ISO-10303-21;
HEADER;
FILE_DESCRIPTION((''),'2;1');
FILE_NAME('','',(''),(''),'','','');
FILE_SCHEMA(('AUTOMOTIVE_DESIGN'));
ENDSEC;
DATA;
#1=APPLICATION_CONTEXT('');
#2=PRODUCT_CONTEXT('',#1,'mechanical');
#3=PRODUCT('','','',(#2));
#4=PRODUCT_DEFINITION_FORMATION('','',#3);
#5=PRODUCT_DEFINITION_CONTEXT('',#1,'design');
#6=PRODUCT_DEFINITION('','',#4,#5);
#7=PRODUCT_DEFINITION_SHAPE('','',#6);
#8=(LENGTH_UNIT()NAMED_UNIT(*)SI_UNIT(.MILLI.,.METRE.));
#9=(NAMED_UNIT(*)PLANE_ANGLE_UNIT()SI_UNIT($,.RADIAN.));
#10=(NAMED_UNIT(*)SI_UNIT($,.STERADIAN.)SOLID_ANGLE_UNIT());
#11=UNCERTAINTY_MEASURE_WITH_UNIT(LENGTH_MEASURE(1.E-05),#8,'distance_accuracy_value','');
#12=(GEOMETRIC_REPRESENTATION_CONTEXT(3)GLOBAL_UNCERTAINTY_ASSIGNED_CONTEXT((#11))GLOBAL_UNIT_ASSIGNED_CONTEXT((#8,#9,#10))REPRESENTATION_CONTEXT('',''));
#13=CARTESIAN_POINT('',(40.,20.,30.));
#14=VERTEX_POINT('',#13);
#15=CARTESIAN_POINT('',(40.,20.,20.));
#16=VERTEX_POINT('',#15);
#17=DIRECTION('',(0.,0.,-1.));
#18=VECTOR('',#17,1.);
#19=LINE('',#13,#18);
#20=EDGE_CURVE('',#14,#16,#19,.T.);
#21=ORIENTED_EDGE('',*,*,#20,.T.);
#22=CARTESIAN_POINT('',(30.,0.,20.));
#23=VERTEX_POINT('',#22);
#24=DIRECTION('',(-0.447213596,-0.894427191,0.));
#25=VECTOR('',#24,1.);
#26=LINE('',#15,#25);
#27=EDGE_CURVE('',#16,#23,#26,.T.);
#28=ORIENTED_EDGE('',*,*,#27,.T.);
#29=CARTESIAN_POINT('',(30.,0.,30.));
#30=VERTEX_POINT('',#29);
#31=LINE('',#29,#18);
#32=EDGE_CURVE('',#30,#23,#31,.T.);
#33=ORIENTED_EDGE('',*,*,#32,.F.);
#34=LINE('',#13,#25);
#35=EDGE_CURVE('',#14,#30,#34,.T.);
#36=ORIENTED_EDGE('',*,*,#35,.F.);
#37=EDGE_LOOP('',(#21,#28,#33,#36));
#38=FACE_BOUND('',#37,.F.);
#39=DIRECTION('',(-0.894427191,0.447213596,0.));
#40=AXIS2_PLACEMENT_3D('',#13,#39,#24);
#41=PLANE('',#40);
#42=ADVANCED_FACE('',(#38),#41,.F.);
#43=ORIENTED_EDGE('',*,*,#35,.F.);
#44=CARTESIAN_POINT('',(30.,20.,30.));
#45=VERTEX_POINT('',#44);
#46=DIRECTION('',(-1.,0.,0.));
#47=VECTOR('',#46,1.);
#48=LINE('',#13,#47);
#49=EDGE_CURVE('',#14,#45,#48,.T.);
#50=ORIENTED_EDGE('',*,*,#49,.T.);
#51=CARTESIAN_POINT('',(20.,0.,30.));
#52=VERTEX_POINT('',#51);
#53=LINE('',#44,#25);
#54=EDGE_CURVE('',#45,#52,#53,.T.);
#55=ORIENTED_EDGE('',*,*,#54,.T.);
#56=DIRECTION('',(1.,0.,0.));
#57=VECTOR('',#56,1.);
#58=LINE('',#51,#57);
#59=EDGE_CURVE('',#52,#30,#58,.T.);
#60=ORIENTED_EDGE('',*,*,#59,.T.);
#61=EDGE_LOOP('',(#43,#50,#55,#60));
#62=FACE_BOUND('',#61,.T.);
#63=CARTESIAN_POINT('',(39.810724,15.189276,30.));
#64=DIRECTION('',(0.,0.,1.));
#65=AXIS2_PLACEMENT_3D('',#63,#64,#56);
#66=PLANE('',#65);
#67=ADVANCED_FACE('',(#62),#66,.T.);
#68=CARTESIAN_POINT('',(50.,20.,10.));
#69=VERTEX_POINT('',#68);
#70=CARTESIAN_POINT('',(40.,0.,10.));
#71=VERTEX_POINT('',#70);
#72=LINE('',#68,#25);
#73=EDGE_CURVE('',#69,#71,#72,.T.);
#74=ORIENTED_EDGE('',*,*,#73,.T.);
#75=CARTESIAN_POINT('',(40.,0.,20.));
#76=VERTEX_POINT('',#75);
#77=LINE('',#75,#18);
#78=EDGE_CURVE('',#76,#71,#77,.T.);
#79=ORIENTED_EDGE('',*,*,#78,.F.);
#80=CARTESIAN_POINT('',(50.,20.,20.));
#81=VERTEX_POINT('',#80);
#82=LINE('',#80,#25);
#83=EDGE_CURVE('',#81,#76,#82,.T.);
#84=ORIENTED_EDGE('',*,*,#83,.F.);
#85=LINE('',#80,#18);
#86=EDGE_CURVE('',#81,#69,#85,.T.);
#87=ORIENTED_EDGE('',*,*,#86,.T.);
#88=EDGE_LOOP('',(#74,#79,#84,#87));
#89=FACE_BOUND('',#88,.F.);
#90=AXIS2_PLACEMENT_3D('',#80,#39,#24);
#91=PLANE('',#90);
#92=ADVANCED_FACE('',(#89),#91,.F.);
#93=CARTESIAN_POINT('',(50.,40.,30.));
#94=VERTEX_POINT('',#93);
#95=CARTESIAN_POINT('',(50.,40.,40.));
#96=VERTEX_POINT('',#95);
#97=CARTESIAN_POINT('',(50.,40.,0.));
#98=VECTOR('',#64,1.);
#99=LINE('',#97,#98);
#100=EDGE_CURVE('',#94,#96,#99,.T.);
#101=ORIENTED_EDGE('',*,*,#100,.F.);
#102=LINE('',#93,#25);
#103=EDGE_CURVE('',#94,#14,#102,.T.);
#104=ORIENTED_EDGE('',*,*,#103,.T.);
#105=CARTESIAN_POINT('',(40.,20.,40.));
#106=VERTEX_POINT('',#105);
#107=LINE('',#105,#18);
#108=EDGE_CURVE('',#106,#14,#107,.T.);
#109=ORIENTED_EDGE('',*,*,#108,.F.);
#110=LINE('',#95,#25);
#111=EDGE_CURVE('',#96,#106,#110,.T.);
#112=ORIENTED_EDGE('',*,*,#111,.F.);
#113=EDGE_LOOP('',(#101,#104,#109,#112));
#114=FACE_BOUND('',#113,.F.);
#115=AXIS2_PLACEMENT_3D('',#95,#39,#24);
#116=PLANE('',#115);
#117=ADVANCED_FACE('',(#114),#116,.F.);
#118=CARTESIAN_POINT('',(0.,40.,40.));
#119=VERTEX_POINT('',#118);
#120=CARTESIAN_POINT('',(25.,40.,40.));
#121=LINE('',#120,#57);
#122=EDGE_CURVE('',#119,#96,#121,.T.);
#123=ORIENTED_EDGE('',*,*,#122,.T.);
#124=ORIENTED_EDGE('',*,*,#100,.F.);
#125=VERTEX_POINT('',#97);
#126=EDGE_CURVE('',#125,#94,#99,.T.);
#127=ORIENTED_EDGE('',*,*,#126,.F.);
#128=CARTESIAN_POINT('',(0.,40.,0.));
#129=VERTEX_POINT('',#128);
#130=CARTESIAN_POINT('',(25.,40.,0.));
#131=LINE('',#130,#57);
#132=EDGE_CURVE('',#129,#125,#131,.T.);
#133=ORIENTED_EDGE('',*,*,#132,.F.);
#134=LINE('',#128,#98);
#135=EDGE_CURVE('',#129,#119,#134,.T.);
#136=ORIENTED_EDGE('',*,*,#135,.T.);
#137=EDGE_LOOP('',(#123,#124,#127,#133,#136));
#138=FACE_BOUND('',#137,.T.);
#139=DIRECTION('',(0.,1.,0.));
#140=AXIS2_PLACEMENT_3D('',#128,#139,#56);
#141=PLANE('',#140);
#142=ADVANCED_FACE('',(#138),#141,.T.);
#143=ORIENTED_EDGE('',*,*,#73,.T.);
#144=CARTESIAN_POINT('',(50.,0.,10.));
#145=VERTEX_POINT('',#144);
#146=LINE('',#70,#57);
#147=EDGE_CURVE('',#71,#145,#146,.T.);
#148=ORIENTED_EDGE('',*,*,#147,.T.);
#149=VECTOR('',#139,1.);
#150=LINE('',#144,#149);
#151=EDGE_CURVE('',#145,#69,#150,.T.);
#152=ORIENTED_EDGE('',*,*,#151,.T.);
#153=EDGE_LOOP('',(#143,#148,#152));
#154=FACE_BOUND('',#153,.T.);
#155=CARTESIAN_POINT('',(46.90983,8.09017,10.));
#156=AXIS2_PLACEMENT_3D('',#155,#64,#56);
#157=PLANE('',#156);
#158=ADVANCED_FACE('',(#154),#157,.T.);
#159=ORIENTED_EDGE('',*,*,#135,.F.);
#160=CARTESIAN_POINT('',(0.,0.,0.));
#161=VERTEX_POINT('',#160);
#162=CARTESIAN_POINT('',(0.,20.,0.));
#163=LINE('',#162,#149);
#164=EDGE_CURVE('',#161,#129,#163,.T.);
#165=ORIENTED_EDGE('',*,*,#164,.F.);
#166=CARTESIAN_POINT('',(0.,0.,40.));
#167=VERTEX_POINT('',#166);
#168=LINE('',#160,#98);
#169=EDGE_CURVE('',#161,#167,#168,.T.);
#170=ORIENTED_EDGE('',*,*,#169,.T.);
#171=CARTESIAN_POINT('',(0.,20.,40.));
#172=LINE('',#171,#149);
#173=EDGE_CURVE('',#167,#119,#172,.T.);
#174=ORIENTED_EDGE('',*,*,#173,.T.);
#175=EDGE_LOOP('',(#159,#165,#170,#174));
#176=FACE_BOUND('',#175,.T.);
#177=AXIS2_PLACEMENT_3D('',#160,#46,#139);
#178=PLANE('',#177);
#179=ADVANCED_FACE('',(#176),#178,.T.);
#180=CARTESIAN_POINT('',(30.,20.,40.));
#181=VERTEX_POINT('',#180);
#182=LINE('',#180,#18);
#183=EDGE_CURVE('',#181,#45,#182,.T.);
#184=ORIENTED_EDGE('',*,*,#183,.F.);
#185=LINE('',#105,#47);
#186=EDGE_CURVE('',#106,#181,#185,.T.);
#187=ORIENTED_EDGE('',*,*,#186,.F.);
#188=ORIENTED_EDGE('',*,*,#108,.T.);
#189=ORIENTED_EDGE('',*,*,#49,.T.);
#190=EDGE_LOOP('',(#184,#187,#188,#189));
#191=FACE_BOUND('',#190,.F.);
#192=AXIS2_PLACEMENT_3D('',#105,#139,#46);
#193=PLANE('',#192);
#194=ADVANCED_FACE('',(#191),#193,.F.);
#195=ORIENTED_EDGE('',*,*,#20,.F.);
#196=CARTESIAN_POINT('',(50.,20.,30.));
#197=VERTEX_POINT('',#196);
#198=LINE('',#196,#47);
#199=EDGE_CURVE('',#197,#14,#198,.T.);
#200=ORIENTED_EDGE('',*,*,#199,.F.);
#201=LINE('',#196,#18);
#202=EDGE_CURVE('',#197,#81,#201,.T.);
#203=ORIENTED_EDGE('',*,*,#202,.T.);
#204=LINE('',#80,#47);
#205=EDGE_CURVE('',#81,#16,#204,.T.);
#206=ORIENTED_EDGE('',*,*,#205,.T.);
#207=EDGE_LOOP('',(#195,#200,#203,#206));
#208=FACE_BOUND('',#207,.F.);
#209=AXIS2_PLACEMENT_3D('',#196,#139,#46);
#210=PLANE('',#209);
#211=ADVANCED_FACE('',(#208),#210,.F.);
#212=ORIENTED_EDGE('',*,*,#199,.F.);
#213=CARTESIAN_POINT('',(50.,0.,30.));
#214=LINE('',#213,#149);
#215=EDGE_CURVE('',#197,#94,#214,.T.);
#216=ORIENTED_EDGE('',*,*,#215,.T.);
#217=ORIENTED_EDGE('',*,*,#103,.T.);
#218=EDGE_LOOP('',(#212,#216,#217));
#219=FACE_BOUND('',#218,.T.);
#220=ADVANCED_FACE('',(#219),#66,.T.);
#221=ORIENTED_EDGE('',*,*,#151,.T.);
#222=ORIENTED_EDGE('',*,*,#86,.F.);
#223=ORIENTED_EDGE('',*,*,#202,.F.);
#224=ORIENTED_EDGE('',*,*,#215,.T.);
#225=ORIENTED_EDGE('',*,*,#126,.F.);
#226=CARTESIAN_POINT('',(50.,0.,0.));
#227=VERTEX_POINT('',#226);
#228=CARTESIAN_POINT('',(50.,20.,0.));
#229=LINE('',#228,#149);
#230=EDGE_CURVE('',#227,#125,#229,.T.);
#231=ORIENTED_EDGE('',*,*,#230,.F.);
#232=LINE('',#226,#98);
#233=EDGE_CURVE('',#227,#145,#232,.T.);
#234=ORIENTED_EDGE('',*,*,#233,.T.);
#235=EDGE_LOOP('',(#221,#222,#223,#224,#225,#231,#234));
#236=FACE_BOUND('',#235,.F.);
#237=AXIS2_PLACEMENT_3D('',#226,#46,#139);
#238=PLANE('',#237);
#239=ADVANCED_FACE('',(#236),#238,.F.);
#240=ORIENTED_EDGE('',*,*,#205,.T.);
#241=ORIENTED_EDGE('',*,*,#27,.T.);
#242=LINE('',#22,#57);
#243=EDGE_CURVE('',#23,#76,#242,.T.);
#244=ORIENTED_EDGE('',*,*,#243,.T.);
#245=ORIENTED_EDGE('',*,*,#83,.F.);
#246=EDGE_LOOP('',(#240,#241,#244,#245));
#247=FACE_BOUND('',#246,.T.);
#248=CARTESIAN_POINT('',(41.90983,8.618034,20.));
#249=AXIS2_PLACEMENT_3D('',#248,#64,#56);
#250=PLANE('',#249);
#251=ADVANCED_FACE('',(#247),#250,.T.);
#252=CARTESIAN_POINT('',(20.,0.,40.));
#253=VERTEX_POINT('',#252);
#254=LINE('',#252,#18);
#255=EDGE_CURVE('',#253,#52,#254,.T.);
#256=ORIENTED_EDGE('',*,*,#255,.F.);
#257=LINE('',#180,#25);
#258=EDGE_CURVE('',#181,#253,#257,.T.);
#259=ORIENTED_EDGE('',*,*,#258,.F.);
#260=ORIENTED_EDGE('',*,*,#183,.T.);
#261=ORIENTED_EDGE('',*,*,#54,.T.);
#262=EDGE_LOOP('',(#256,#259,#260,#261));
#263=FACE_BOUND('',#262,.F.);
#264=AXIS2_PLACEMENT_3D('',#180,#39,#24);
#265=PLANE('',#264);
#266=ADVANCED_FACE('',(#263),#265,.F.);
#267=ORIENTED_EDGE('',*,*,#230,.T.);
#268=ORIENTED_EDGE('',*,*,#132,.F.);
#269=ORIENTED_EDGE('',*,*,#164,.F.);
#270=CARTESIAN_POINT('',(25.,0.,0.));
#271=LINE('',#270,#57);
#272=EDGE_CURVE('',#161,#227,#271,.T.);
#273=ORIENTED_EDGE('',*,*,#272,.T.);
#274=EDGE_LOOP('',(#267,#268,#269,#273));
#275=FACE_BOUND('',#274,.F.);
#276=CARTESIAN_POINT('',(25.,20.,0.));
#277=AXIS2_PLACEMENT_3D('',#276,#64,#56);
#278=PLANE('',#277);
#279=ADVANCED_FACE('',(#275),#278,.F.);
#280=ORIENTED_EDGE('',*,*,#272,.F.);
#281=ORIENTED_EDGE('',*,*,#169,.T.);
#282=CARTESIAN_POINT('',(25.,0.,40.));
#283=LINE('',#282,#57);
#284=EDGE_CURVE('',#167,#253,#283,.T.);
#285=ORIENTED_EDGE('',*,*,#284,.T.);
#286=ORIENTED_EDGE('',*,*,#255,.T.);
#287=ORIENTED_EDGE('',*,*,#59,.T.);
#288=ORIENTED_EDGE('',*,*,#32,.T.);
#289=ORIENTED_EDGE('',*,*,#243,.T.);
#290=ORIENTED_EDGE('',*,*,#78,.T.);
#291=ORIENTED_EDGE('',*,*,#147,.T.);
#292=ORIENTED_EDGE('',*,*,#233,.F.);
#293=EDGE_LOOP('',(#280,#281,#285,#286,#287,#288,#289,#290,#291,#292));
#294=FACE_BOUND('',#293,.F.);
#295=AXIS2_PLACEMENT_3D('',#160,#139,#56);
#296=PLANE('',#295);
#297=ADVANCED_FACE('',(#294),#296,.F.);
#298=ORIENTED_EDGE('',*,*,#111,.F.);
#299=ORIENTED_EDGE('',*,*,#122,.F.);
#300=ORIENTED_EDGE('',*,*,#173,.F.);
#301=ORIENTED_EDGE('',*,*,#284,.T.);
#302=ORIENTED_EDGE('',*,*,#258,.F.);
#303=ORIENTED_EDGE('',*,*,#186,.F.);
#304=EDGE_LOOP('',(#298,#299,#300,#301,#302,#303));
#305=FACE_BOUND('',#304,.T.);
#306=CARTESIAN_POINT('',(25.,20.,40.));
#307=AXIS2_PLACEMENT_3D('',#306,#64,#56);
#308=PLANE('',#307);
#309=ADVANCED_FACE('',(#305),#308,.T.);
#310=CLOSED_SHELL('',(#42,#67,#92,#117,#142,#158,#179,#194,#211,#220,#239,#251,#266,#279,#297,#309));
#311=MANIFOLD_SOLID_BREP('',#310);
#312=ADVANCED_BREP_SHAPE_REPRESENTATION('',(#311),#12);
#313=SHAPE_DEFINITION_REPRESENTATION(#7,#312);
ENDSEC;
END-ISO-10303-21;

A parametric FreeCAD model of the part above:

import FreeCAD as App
import Part
import Sketcher
from FreeCAD import Vector
Q = App.Units.Quantity


def add_polygon(sketch, points):
    """Adds a closed chain of lines whose ends are joined by coincident constraints."""
    first, n = sketch.GeometryCount, len(points)
    for a, b in zip(points, points[1:] + points[:1]):
        sketch.addGeometry(Part.LineSegment(App.Vector(*a, 0), App.Vector(*b, 0)), False)
    for i in range(n):
        sketch.addConstraint(Sketcher.Constraint("Coincident", first + i, 2, first + (i + 1) % n, 1))

doc = App.newDocument("Part")
body = doc.addObject("PartDesign::Body", "Body")

sketch1 = body.newObject("Sketcher::SketchObject", "Sketch")
sketch1.AttachmentSupport = (doc.getObject("XY_Plane"), [""])
sketch1.MapMode = "FlatFace"
add_polygon(sketch1, [(0, 40), (0, 0), (50, 0), (50, 40)])
sketch1.addConstraint([
    Sketcher.Constraint("Vertical", 0),
    Sketcher.Constraint("Horizontal", 1),
    Sketcher.Constraint("Vertical", 2),
    Sketcher.Constraint("Horizontal", 3),
    Sketcher.Constraint("Coincident", 0, 2, -1, 1),
    Sketcher.Constraint("DistanceX", 1, 1, 1, 2, Q("50 mm")),
    Sketcher.Constraint("DistanceY", 0, 2, 0, 1, Q("40 mm")),
])
pad1 = body.newObject("PartDesign::Pad", "Pad")
pad1.Profile = sketch1
pad1.Length = 40

sketch2 = body.newObject("Sketcher::SketchObject", "Sketch001")
sketch2.AttachmentSupport = (doc.getObject("XY_Plane"), [""])
sketch2.MapMode = "FlatFace"
sketch2.AttachmentOffset = App.Placement(Vector(0, 0, 40), App.Rotation())
add_polygon(sketch2, [(30, 20), (20, 0), (50, 0), (50, 40), (40, 20)])
sketch2.addConstraint([
    Sketcher.Constraint("Horizontal", 1),
    Sketcher.Constraint("Vertical", 2),
    Sketcher.Constraint("Horizontal", 4),
    Sketcher.Constraint("PointOnObject", 0, 2, -1),
    Sketcher.Constraint("Parallel", 0, 3),
    Sketcher.Constraint("Equal", 0, 3),
    Sketcher.Constraint("DistanceX", 1, 1, 1, 2, Q("30 mm")),
    Sketcher.Constraint("DistanceX", 4, 2, 4, 1, Q("10 mm")),
    Sketcher.Constraint("DistanceY", 2, 1, 2, 2, Q("40 mm")),
    Sketcher.Constraint("DistanceX", -1, 1, 0, 2, Q("20 mm")),
])
pocket1 = body.newObject("PartDesign::Pocket", "Pocket")
pocket1.Profile = sketch2
pocket1.Length = 10

sketch3 = body.newObject("Sketcher::SketchObject", "Sketch002")
sketch3.AttachmentSupport = (doc.getObject("XY_Plane"), [""])
sketch3.MapMode = "FlatFace"
sketch3.AttachmentOffset = App.Placement(Vector(0, 0, 30), App.Rotation())
add_polygon(sketch3, [(40, 20), (30, 0), (50, 0), (50, 20)])
sketch3.addConstraint([
    Sketcher.Constraint("Horizontal", 1),
    Sketcher.Constraint("Vertical", 2),
    Sketcher.Constraint("Horizontal", 3),
    Sketcher.Constraint("PointOnObject", 0, 2, -1),
    Sketcher.Constraint("Equal", 1, 2),
    Sketcher.Constraint("DistanceX", 1, 1, 1, 2, Q("20 mm")),
    Sketcher.Constraint("DistanceX", 3, 2, 3, 1, Q("10 mm")),
    Sketcher.Constraint("DistanceX", -1, 1, 0, 2, Q("30 mm")),
])
pocket2 = body.newObject("PartDesign::Pocket", "Pocket001")
pocket2.Profile = sketch3
pocket2.Length = 10

sketch4 = body.newObject("Sketcher::SketchObject", "Sketch003")
sketch4.AttachmentSupport = (doc.getObject("XY_Plane"), [""])
sketch4.MapMode = "FlatFace"
sketch4.AttachmentOffset = App.Placement(Vector(0, 0, 20), App.Rotation())
add_polygon(sketch4, [(50, 20), (40, 0), (50, 0)])
sketch4.addConstraint([
    Sketcher.Constraint("Horizontal", 1),
    Sketcher.Constraint("Vertical", 2),
    Sketcher.Constraint("PointOnObject", 0, 2, -1),
    Sketcher.Constraint("DistanceX", 1, 1, 1, 2, Q("10 mm")),
    Sketcher.Constraint("DistanceY", 2, 1, 2, 2, Q("20 mm")),
    Sketcher.Constraint("DistanceX", -1, 1, 0, 2, Q("40 mm")),
])
pocket3 = body.newObject("PartDesign::Pocket", "Pocket002")
pocket3.Profile = sketch4
pocket3.Length = 10

doc.recompute()
